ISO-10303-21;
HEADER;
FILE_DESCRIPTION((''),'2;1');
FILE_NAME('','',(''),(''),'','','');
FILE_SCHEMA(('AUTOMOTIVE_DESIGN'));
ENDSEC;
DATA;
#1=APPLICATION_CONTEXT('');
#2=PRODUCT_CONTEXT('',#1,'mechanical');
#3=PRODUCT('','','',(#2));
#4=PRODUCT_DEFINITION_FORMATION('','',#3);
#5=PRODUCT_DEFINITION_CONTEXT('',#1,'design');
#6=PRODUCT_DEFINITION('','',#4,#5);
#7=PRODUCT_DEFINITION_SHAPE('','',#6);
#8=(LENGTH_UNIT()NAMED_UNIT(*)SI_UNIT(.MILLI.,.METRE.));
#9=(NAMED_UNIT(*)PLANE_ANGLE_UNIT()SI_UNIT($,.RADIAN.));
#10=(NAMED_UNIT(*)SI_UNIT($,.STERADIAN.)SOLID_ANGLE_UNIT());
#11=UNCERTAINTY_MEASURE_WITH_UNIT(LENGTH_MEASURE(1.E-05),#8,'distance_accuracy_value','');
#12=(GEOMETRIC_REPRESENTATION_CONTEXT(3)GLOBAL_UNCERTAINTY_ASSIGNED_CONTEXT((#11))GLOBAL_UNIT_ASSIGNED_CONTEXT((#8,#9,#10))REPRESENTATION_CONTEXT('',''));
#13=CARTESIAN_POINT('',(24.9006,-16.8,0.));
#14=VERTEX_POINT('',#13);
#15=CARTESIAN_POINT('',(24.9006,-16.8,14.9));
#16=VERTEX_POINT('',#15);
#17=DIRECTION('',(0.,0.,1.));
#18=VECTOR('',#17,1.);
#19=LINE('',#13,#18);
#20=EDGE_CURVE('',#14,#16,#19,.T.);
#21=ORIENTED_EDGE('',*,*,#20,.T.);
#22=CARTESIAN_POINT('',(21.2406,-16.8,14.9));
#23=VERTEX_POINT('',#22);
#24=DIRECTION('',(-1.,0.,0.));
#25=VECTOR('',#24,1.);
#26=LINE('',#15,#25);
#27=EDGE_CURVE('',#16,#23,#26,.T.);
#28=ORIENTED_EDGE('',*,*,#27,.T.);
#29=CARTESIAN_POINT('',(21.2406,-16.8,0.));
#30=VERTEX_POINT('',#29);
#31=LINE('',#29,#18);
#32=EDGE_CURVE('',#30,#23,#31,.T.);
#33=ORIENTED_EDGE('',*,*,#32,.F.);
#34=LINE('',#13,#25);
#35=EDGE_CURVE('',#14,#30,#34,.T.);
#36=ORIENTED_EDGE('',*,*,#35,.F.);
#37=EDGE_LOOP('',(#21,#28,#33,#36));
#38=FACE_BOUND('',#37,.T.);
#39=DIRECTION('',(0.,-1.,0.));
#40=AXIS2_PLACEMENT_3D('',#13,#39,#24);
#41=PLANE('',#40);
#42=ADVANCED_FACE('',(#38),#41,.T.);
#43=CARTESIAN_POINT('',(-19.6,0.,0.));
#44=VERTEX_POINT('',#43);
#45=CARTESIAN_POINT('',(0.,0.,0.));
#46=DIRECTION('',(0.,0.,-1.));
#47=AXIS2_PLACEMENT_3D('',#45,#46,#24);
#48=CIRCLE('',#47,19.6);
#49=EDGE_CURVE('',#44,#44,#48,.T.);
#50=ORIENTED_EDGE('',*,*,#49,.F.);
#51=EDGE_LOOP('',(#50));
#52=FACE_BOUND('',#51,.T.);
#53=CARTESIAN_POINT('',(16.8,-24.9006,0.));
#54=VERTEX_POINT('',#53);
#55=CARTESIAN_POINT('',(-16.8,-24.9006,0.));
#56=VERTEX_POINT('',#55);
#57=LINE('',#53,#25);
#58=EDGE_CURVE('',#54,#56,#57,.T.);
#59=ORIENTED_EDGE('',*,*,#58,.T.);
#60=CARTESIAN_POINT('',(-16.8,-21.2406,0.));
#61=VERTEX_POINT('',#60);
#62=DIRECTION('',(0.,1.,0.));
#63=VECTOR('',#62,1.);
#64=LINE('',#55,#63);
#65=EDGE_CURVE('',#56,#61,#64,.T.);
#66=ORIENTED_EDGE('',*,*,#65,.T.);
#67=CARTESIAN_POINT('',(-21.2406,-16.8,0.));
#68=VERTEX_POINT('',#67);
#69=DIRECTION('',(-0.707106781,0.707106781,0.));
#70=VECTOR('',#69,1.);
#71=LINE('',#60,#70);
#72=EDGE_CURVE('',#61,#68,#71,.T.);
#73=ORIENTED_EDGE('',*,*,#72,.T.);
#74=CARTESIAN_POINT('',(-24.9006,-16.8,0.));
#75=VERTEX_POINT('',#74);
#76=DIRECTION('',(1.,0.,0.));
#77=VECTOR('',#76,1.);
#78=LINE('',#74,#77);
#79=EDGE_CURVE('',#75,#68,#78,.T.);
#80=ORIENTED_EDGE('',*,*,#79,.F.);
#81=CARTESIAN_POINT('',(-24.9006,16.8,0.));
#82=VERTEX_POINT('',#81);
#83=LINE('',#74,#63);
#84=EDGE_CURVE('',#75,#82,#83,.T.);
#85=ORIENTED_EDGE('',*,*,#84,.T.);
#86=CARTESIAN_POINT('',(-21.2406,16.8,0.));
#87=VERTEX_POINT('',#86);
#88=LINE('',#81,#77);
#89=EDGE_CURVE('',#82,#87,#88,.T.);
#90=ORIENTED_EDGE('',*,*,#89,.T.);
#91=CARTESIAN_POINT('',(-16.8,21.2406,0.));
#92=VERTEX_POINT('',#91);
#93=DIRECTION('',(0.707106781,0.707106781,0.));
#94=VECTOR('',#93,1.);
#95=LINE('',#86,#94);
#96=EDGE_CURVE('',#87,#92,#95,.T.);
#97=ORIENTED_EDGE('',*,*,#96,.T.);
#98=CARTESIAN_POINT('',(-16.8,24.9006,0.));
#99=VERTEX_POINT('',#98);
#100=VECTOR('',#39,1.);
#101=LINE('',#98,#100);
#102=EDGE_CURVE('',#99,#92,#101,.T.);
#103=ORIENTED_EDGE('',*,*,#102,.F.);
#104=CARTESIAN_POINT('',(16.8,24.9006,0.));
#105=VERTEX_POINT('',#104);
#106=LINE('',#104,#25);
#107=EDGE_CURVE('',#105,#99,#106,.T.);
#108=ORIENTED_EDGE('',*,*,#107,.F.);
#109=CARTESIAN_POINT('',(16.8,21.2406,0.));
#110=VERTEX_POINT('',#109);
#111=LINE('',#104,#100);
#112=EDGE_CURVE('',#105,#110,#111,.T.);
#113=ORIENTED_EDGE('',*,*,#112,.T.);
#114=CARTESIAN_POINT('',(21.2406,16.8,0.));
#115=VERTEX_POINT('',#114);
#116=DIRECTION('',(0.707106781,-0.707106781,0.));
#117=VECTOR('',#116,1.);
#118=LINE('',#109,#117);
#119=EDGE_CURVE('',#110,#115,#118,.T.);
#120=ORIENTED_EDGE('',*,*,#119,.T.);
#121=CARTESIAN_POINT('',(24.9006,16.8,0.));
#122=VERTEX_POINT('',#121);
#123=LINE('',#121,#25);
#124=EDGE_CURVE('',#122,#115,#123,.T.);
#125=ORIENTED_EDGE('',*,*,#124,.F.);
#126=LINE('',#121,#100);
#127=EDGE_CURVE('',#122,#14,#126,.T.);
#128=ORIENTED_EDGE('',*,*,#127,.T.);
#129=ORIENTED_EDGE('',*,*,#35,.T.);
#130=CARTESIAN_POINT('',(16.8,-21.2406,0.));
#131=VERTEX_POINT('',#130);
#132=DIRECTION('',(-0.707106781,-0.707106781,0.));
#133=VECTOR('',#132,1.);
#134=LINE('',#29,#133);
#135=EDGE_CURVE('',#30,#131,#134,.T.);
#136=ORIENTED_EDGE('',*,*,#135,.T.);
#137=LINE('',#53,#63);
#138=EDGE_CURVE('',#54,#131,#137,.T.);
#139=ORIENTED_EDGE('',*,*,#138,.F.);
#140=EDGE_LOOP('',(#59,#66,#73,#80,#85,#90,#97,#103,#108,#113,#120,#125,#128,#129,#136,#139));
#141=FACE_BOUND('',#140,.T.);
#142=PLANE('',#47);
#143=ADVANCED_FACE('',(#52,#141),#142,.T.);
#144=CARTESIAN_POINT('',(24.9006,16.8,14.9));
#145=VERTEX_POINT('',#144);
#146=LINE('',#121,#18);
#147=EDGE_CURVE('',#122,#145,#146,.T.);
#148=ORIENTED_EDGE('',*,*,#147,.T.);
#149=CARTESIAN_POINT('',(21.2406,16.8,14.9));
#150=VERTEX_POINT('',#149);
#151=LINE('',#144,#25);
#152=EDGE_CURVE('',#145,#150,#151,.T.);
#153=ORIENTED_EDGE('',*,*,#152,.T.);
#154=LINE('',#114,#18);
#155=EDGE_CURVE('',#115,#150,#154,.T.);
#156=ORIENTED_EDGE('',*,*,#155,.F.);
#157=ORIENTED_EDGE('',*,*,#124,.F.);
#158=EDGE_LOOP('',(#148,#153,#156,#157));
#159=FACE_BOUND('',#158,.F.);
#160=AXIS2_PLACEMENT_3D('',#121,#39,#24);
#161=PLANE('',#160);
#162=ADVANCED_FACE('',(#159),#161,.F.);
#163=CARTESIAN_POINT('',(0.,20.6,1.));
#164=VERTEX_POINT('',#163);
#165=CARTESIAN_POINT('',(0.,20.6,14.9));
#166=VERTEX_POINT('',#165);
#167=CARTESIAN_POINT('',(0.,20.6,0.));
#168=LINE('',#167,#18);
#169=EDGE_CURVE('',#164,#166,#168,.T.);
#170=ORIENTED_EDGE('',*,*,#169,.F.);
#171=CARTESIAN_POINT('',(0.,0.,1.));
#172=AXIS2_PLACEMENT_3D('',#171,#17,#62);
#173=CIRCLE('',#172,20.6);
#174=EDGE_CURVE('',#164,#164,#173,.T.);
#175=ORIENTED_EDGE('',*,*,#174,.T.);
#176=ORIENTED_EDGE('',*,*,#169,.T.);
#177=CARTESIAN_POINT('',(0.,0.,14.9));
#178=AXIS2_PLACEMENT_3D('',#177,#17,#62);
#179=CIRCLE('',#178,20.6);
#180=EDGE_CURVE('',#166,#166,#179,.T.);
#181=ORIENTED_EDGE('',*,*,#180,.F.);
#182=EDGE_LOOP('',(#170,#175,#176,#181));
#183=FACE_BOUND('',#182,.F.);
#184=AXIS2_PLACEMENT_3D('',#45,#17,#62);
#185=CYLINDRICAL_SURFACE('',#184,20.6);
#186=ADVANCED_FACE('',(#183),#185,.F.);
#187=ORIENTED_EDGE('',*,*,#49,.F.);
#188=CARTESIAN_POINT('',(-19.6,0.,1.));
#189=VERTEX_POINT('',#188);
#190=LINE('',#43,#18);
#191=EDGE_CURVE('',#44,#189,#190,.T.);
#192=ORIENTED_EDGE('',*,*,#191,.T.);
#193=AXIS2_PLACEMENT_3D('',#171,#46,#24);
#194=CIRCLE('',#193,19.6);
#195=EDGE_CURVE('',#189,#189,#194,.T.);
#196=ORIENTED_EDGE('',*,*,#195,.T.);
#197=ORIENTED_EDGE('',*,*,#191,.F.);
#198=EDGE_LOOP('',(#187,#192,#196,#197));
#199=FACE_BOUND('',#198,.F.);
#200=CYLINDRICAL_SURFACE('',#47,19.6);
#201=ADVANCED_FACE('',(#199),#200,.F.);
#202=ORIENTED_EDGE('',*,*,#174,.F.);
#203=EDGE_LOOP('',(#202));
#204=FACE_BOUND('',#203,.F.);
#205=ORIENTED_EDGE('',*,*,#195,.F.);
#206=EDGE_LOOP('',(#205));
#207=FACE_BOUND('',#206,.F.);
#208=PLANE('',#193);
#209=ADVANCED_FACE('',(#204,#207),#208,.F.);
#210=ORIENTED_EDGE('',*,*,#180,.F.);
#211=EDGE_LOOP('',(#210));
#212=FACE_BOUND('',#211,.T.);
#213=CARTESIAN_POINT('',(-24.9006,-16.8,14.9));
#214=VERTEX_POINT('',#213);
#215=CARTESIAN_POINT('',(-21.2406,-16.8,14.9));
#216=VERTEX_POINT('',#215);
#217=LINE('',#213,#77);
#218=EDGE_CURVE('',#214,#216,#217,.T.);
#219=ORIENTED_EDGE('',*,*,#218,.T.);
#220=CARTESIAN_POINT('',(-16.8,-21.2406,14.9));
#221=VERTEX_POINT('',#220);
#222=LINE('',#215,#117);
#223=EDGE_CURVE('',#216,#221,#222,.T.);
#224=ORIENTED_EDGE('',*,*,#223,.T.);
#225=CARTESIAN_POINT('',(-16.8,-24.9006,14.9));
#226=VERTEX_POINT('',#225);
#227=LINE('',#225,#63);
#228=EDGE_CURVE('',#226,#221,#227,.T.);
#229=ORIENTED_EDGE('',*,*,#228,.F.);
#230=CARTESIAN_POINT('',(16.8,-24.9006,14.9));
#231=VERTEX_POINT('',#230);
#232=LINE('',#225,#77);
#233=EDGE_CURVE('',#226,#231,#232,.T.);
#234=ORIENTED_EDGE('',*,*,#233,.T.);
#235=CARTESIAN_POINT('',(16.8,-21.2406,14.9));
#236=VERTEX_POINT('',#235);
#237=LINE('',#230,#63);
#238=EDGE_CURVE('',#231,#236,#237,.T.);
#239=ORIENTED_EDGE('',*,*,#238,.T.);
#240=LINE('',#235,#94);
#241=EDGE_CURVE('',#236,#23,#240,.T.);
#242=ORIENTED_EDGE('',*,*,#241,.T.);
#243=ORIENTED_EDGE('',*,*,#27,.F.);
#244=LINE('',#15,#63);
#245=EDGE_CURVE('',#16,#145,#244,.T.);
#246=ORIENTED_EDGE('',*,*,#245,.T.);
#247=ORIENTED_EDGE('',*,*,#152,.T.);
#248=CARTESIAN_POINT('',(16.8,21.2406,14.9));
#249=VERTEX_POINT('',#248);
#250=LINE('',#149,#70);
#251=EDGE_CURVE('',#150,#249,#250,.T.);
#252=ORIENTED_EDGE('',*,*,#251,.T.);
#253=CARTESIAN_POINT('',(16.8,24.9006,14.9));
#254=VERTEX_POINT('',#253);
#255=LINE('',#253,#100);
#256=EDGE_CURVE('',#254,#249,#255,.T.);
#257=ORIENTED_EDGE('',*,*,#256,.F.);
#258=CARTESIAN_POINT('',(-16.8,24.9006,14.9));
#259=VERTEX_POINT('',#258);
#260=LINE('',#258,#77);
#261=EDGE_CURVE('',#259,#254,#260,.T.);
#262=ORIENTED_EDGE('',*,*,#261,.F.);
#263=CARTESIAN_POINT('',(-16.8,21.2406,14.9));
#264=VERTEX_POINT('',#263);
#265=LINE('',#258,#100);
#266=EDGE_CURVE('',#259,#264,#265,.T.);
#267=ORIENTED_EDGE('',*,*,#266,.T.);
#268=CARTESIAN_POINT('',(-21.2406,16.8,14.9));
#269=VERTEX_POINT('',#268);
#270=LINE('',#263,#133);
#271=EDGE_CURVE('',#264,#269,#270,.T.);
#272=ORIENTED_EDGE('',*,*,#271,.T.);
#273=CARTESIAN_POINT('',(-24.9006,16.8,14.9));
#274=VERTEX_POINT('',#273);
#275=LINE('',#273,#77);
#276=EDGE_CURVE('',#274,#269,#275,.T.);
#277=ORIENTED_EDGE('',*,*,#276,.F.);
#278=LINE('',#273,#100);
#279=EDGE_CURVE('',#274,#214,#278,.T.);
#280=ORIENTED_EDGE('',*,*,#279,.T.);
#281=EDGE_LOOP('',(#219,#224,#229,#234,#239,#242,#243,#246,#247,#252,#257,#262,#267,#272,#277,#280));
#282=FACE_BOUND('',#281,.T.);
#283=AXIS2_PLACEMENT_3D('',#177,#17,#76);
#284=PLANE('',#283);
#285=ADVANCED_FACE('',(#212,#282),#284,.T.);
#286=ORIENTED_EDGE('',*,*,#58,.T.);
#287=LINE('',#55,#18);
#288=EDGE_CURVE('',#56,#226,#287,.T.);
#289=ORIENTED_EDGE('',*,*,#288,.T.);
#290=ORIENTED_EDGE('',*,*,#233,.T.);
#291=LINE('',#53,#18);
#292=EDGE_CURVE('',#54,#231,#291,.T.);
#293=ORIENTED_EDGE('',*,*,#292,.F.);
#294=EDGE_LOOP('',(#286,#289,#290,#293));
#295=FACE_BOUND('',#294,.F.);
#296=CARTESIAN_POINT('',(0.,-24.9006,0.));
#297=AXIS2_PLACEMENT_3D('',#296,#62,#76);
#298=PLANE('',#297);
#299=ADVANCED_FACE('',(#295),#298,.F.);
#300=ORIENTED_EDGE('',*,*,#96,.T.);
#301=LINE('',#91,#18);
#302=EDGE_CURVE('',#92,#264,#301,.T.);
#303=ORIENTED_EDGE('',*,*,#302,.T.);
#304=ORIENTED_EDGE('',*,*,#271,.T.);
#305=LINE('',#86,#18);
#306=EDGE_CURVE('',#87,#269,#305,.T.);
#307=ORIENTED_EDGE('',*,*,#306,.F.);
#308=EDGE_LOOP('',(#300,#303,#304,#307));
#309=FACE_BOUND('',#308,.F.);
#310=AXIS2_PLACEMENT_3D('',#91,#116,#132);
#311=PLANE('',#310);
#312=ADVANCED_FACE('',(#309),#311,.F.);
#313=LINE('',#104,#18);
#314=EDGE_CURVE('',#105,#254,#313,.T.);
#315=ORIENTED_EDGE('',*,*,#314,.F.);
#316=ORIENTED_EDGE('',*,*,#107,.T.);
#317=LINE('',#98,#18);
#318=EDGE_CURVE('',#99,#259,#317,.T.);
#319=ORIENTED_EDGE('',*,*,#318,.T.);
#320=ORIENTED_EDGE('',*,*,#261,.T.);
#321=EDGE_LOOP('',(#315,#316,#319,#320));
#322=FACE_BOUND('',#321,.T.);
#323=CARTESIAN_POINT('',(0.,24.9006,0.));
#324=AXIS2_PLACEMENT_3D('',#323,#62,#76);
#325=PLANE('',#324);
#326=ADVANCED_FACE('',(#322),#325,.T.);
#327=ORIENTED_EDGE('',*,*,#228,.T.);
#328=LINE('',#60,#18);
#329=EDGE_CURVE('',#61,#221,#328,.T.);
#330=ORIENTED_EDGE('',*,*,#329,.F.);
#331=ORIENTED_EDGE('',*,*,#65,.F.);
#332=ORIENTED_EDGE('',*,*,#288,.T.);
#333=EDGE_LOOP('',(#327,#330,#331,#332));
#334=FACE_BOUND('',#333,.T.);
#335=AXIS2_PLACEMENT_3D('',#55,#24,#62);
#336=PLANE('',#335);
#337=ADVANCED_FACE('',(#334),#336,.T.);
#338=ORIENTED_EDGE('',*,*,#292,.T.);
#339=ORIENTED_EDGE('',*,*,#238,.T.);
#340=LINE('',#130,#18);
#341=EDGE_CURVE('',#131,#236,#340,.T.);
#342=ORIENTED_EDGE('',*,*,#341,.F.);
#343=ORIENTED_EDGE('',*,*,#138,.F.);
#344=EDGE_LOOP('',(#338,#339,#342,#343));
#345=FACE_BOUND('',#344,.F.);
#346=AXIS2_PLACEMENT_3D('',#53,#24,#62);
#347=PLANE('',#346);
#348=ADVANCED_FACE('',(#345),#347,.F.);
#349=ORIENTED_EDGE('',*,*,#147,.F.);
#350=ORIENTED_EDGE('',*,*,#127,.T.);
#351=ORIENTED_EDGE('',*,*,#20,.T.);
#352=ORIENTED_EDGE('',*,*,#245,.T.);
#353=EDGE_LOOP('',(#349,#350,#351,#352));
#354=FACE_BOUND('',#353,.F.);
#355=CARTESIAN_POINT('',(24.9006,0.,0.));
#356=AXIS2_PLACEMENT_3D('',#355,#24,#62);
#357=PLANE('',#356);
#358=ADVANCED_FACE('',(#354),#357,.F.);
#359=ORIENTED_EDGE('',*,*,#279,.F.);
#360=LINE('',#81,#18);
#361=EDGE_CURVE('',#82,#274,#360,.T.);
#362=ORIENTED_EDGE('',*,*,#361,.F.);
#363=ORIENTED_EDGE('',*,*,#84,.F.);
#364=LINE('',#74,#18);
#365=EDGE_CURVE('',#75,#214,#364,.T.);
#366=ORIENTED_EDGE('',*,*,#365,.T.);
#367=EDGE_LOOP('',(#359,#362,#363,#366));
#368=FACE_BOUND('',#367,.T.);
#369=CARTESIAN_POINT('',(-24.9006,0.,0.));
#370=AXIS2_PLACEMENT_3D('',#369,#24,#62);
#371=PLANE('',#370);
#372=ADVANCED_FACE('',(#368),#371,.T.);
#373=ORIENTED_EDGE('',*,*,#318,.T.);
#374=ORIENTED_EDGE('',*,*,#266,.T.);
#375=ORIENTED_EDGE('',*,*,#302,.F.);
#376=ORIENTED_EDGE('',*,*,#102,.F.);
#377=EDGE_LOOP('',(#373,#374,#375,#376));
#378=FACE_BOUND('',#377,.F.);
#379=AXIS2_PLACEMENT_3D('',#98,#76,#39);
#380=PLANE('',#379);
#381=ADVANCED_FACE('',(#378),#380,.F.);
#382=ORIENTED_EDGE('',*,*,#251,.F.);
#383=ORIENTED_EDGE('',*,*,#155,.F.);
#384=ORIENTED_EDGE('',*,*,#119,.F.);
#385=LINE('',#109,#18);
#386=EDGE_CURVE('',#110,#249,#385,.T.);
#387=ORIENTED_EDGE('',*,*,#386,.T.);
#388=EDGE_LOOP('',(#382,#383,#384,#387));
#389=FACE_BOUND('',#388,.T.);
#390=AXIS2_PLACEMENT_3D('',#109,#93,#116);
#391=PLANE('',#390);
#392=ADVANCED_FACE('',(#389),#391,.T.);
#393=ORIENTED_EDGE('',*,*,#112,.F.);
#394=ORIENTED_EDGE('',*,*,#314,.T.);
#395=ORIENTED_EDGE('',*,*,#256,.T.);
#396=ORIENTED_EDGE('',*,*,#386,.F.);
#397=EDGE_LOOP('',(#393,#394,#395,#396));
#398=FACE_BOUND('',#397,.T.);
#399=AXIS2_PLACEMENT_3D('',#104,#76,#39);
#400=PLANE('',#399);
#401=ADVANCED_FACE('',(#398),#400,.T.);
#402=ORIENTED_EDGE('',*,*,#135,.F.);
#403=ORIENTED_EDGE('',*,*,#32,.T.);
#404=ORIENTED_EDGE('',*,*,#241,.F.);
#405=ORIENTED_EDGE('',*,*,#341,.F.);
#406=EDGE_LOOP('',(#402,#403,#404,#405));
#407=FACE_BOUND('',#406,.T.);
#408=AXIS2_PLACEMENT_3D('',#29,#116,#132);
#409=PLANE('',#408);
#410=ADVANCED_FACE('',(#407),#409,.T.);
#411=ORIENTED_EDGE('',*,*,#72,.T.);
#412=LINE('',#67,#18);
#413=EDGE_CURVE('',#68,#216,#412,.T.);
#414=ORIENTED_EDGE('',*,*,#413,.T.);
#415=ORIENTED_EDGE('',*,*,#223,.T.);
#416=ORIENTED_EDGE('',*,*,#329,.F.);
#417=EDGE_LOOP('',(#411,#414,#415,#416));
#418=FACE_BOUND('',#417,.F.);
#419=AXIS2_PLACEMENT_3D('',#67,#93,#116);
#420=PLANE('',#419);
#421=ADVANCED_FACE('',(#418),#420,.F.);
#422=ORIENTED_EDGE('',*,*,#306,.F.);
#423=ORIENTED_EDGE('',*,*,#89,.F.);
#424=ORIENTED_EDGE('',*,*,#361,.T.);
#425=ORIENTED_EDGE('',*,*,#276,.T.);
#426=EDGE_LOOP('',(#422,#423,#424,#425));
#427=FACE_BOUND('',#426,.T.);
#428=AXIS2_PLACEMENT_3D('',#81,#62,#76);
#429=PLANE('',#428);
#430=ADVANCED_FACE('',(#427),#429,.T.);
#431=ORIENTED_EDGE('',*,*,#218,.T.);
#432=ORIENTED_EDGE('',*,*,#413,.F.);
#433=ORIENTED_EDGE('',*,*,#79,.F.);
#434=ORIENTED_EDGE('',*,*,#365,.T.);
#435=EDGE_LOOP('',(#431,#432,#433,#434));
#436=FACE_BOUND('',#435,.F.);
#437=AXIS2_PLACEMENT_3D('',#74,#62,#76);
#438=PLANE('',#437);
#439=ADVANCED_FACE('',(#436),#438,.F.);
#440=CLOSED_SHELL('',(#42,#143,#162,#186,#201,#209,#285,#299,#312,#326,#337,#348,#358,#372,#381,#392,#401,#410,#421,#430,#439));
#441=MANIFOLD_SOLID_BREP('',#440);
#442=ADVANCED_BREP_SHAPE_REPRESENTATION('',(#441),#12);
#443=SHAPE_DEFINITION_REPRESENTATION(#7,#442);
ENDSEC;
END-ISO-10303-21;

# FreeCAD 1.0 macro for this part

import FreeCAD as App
import Part
import Sketcher
Q = App.Units.Quantity

doc = App.newDocument("Part")
params = doc.addObject("Spreadsheet::Sheet", "Params")
for row, (alias, value) in enumerate([
    ("sketch1_width", "3.66 mm"),
    ("sketch1_length", "6.28 mm"),
    ("pad1_length", "14.9 mm"),
    ("sketch2_diameter", "41.2 mm"),
    ("hole_diameter", "41.2 mm"),
    ("sketch3_diameter", "41.2 mm"),
    ("sketch3_diameter2", "39.2 mm"),
    ("pad2_length", "1 mm"),
], start=1):
    params.set(f"A{row}", alias)
    params.set(f"B{row}", "=" + value)
    params.setAlias(f"B{row}", alias)

body = doc.addObject("PartDesign::Body", "Body")

sketch1 = doc.addObject("Sketcher::SketchObject", "Sketch")
body.addObject(sketch1)
sketch1.AttachmentSupport = (doc.XY_Plane, [""])
sketch1.MapMode = "FlatFace"
sketch1.addGeometry([
    Part.LineSegment(App.Vector(16.8, 24.9006, 0), App.Vector(-16.8, 24.9006, 0)),
    Part.LineSegment(App.Vector(-16.8, 24.9006, 0), App.Vector(-16.8, 21.2406, 0)),
    Part.LineSegment(App.Vector(-16.8, 21.2406, 0), App.Vector(-21.2406, 16.8, 0)),
    Part.LineSegment(App.Vector(-21.2406, 16.8, 0), App.Vector(-24.9006, 16.8, 0)),
    Part.LineSegment(App.Vector(-24.9006, 16.8, 0), App.Vector(-24.9006, -16.8, 0)),
    Part.LineSegment(App.Vector(-24.9006, -16.8, 0), App.Vector(-21.2406, -16.8, 0)),
    Part.LineSegment(App.Vector(-21.2406, -16.8, 0), App.Vector(-16.8, -21.2406, 0)),
    Part.LineSegment(App.Vector(-16.8, -21.2406, 0), App.Vector(-16.8, -24.9006, 0)),
    Part.LineSegment(App.Vector(-16.8, -24.9006, 0), App.Vector(16.8, -24.9006, 0)),
    Part.LineSegment(App.Vector(16.8, -24.9006, 0), App.Vector(16.8, -21.2406, 0)),
    Part.LineSegment(App.Vector(16.8, -21.2406, 0), App.Vector(21.2406, -16.8, 0)),
    Part.LineSegment(App.Vector(21.2406, -16.8, 0), App.Vector(24.9006, -16.8, 0)),
    Part.LineSegment(App.Vector(24.9006, -16.8, 0), App.Vector(24.9006, 16.8, 0)),
    Part.LineSegment(App.Vector(24.9006, 16.8, 0), App.Vector(21.2406, 16.8, 0)),
    Part.LineSegment(App.Vector(21.2406, 16.8, 0), App.Vector(16.8, 21.2406, 0)),
    Part.LineSegment(App.Vector(16.8, 21.2406, 0), App.Vector(16.8, 24.9006, 0)),
], False)
sketch1.addConstraint([
    Sketcher.Constraint("Coincident", 0, 2, 1, 1),
    Sketcher.Constraint("Coincident", 1, 2, 2, 1),
    Sketcher.Constraint("Coincident", 2, 2, 3, 1),
    Sketcher.Constraint("Coincident", 3, 2, 4, 1),
    Sketcher.Constraint("Coincident", 4, 2, 5, 1),
    Sketcher.Constraint("Coincident", 5, 2, 6, 1),
    Sketcher.Constraint("Coincident", 6, 2, 7, 1),
    Sketcher.Constraint("Coincident", 7, 2, 8, 1),
    Sketcher.Constraint("Coincident", 8, 2, 9, 1),
    Sketcher.Constraint("Coincident", 9, 2, 10, 1),
    Sketcher.Constraint("Coincident", 10, 2, 11, 1),
    Sketcher.Constraint("Coincident", 11, 2, 12, 1),
    Sketcher.Constraint("Coincident", 12, 2, 13, 1),
    Sketcher.Constraint("Coincident", 13, 2, 14, 1),
    Sketcher.Constraint("Coincident", 14, 2, 15, 1),
    Sketcher.Constraint("Coincident", 15, 2, 0, 1),
    Sketcher.Constraint("Horizontal", 0),
    Sketcher.Constraint("Vertical", 1),
    Sketcher.Constraint("Horizontal", 3),
    Sketcher.Constraint("Vertical", 4),
    Sketcher.Constraint("Horizontal", 5),
    Sketcher.Constraint("Vertical", 7),
    Sketcher.Constraint("Horizontal", 8),
    Sketcher.Constraint("Vertical", 9),
    Sketcher.Constraint("Horizontal", 11),
    Sketcher.Constraint("Vertical", 12),
    Sketcher.Constraint("Horizontal", 13),
    Sketcher.Constraint("Vertical", 15),
    Sketcher.Constraint("Symmetric", 0, 2, 8, 2, -1, 1),
    Sketcher.Constraint("Symmetric", 2, 2, 10, 2, -1, 1),
    Sketcher.Constraint("Symmetric", 4, 2, 12, 2, -1, 1),
    Sketcher.Constraint("Symmetric", 6, 2, 14, 2, -1, 1),
    Sketcher.Constraint("Symmetric", 6, 2, 9, 2, -2),
    Sketcher.Constraint("Symmetric", 5, 2, 10, 2, -2),
    Sketcher.Constraint("Perpendicular", 2, 6),
    Sketcher.Constraint("Perpendicular", 6, 10),
    Sketcher.Constraint("Perpendicular", 10, 14),
    Sketcher.Constraint("Equal", 13, 1),
    Sketcher.Constraint("Equal", 8, 4),
    Sketcher.Constraint("DistanceX", 3, 2, 3, 1, Q("3.66 mm")),
    Sketcher.Constraint("DistanceX", 0, 2, -1, 1, Q("16.8 mm")),
    Sketcher.Constraint("Distance", 2, Q("6.28 mm")),
])
sketch1.setExpression("Constraints[39]", "Params.sketch1_width")
sketch1.setExpression("Constraints[41]", "Params.sketch1_length")
pad1 = doc.addObject("PartDesign::Pad", "Pad")
body.addObject(pad1)
pad1.Profile = sketch1
pad1.setExpression("Length", "Params.pad1_length")

sketch2 = doc.addObject("Sketcher::SketchObject", "Sketch001")
body.addObject(sketch2)
sketch2.AttachmentSupport = (doc.XY_Plane, [""])
sketch2.MapMode = "FlatFace"
sketch2.addGeometry(Part.Circle(App.Vector(0, 0, 0), App.Vector(0, 0, 1), 20.6), False)
sketch2.addConstraint([
    Sketcher.Constraint("Coincident", 0, 3, -1, 1),
    Sketcher.Constraint("Diameter", 0, Q("41.2 mm")),
])
sketch2.setExpression("Constraints[1]", "Params.sketch2_diameter")
doc.recompute()
hole = doc.addObject("PartDesign::Hole", "Hole")
body.addObject(hole)
hole.Profile = sketch2
hole.ThreadType = "None"
hole.setExpression("Diameter", "Params.hole_diameter")
hole.DepthType = "ThroughAll"
hole.Reversed = True

sketch3 = doc.addObject("Sketcher::SketchObject", "Sketch002")
body.addObject(sketch3)
sketch3.AttachmentSupport = (doc.XY_Plane, [""])
sketch3.MapMode = "FlatFace"
sketch3.addGeometry([
    Part.Circle(App.Vector(0, 0, 0), App.Vector(0, 0, 1), 20.6),
    Part.Circle(App.Vector(0, 0, 0), App.Vector(0, 0, 1), 19.6),
], False)
sketch3.addConstraint([
    Sketcher.Constraint("Coincident", 0, 3, -1, 1),
    Sketcher.Constraint("Coincident", 1, 3, -1, 1),
    Sketcher.Constraint("Diameter", 0, Q("41.2 mm")),
    Sketcher.Constraint("Diameter", 1, Q("39.2 mm")),
])
sketch3.setExpression("Constraints[2]", "Params.sketch3_diameter")
sketch3.setExpression("Constraints[3]", "Params.sketch3_diameter2")
pad2 = doc.addObject("PartDesign::Pad", "Pad001")
body.addObject(pad2)
pad2.Profile = sketch3
pad2.setExpression("Length", "Params.pad2_length")

doc.recompute()
